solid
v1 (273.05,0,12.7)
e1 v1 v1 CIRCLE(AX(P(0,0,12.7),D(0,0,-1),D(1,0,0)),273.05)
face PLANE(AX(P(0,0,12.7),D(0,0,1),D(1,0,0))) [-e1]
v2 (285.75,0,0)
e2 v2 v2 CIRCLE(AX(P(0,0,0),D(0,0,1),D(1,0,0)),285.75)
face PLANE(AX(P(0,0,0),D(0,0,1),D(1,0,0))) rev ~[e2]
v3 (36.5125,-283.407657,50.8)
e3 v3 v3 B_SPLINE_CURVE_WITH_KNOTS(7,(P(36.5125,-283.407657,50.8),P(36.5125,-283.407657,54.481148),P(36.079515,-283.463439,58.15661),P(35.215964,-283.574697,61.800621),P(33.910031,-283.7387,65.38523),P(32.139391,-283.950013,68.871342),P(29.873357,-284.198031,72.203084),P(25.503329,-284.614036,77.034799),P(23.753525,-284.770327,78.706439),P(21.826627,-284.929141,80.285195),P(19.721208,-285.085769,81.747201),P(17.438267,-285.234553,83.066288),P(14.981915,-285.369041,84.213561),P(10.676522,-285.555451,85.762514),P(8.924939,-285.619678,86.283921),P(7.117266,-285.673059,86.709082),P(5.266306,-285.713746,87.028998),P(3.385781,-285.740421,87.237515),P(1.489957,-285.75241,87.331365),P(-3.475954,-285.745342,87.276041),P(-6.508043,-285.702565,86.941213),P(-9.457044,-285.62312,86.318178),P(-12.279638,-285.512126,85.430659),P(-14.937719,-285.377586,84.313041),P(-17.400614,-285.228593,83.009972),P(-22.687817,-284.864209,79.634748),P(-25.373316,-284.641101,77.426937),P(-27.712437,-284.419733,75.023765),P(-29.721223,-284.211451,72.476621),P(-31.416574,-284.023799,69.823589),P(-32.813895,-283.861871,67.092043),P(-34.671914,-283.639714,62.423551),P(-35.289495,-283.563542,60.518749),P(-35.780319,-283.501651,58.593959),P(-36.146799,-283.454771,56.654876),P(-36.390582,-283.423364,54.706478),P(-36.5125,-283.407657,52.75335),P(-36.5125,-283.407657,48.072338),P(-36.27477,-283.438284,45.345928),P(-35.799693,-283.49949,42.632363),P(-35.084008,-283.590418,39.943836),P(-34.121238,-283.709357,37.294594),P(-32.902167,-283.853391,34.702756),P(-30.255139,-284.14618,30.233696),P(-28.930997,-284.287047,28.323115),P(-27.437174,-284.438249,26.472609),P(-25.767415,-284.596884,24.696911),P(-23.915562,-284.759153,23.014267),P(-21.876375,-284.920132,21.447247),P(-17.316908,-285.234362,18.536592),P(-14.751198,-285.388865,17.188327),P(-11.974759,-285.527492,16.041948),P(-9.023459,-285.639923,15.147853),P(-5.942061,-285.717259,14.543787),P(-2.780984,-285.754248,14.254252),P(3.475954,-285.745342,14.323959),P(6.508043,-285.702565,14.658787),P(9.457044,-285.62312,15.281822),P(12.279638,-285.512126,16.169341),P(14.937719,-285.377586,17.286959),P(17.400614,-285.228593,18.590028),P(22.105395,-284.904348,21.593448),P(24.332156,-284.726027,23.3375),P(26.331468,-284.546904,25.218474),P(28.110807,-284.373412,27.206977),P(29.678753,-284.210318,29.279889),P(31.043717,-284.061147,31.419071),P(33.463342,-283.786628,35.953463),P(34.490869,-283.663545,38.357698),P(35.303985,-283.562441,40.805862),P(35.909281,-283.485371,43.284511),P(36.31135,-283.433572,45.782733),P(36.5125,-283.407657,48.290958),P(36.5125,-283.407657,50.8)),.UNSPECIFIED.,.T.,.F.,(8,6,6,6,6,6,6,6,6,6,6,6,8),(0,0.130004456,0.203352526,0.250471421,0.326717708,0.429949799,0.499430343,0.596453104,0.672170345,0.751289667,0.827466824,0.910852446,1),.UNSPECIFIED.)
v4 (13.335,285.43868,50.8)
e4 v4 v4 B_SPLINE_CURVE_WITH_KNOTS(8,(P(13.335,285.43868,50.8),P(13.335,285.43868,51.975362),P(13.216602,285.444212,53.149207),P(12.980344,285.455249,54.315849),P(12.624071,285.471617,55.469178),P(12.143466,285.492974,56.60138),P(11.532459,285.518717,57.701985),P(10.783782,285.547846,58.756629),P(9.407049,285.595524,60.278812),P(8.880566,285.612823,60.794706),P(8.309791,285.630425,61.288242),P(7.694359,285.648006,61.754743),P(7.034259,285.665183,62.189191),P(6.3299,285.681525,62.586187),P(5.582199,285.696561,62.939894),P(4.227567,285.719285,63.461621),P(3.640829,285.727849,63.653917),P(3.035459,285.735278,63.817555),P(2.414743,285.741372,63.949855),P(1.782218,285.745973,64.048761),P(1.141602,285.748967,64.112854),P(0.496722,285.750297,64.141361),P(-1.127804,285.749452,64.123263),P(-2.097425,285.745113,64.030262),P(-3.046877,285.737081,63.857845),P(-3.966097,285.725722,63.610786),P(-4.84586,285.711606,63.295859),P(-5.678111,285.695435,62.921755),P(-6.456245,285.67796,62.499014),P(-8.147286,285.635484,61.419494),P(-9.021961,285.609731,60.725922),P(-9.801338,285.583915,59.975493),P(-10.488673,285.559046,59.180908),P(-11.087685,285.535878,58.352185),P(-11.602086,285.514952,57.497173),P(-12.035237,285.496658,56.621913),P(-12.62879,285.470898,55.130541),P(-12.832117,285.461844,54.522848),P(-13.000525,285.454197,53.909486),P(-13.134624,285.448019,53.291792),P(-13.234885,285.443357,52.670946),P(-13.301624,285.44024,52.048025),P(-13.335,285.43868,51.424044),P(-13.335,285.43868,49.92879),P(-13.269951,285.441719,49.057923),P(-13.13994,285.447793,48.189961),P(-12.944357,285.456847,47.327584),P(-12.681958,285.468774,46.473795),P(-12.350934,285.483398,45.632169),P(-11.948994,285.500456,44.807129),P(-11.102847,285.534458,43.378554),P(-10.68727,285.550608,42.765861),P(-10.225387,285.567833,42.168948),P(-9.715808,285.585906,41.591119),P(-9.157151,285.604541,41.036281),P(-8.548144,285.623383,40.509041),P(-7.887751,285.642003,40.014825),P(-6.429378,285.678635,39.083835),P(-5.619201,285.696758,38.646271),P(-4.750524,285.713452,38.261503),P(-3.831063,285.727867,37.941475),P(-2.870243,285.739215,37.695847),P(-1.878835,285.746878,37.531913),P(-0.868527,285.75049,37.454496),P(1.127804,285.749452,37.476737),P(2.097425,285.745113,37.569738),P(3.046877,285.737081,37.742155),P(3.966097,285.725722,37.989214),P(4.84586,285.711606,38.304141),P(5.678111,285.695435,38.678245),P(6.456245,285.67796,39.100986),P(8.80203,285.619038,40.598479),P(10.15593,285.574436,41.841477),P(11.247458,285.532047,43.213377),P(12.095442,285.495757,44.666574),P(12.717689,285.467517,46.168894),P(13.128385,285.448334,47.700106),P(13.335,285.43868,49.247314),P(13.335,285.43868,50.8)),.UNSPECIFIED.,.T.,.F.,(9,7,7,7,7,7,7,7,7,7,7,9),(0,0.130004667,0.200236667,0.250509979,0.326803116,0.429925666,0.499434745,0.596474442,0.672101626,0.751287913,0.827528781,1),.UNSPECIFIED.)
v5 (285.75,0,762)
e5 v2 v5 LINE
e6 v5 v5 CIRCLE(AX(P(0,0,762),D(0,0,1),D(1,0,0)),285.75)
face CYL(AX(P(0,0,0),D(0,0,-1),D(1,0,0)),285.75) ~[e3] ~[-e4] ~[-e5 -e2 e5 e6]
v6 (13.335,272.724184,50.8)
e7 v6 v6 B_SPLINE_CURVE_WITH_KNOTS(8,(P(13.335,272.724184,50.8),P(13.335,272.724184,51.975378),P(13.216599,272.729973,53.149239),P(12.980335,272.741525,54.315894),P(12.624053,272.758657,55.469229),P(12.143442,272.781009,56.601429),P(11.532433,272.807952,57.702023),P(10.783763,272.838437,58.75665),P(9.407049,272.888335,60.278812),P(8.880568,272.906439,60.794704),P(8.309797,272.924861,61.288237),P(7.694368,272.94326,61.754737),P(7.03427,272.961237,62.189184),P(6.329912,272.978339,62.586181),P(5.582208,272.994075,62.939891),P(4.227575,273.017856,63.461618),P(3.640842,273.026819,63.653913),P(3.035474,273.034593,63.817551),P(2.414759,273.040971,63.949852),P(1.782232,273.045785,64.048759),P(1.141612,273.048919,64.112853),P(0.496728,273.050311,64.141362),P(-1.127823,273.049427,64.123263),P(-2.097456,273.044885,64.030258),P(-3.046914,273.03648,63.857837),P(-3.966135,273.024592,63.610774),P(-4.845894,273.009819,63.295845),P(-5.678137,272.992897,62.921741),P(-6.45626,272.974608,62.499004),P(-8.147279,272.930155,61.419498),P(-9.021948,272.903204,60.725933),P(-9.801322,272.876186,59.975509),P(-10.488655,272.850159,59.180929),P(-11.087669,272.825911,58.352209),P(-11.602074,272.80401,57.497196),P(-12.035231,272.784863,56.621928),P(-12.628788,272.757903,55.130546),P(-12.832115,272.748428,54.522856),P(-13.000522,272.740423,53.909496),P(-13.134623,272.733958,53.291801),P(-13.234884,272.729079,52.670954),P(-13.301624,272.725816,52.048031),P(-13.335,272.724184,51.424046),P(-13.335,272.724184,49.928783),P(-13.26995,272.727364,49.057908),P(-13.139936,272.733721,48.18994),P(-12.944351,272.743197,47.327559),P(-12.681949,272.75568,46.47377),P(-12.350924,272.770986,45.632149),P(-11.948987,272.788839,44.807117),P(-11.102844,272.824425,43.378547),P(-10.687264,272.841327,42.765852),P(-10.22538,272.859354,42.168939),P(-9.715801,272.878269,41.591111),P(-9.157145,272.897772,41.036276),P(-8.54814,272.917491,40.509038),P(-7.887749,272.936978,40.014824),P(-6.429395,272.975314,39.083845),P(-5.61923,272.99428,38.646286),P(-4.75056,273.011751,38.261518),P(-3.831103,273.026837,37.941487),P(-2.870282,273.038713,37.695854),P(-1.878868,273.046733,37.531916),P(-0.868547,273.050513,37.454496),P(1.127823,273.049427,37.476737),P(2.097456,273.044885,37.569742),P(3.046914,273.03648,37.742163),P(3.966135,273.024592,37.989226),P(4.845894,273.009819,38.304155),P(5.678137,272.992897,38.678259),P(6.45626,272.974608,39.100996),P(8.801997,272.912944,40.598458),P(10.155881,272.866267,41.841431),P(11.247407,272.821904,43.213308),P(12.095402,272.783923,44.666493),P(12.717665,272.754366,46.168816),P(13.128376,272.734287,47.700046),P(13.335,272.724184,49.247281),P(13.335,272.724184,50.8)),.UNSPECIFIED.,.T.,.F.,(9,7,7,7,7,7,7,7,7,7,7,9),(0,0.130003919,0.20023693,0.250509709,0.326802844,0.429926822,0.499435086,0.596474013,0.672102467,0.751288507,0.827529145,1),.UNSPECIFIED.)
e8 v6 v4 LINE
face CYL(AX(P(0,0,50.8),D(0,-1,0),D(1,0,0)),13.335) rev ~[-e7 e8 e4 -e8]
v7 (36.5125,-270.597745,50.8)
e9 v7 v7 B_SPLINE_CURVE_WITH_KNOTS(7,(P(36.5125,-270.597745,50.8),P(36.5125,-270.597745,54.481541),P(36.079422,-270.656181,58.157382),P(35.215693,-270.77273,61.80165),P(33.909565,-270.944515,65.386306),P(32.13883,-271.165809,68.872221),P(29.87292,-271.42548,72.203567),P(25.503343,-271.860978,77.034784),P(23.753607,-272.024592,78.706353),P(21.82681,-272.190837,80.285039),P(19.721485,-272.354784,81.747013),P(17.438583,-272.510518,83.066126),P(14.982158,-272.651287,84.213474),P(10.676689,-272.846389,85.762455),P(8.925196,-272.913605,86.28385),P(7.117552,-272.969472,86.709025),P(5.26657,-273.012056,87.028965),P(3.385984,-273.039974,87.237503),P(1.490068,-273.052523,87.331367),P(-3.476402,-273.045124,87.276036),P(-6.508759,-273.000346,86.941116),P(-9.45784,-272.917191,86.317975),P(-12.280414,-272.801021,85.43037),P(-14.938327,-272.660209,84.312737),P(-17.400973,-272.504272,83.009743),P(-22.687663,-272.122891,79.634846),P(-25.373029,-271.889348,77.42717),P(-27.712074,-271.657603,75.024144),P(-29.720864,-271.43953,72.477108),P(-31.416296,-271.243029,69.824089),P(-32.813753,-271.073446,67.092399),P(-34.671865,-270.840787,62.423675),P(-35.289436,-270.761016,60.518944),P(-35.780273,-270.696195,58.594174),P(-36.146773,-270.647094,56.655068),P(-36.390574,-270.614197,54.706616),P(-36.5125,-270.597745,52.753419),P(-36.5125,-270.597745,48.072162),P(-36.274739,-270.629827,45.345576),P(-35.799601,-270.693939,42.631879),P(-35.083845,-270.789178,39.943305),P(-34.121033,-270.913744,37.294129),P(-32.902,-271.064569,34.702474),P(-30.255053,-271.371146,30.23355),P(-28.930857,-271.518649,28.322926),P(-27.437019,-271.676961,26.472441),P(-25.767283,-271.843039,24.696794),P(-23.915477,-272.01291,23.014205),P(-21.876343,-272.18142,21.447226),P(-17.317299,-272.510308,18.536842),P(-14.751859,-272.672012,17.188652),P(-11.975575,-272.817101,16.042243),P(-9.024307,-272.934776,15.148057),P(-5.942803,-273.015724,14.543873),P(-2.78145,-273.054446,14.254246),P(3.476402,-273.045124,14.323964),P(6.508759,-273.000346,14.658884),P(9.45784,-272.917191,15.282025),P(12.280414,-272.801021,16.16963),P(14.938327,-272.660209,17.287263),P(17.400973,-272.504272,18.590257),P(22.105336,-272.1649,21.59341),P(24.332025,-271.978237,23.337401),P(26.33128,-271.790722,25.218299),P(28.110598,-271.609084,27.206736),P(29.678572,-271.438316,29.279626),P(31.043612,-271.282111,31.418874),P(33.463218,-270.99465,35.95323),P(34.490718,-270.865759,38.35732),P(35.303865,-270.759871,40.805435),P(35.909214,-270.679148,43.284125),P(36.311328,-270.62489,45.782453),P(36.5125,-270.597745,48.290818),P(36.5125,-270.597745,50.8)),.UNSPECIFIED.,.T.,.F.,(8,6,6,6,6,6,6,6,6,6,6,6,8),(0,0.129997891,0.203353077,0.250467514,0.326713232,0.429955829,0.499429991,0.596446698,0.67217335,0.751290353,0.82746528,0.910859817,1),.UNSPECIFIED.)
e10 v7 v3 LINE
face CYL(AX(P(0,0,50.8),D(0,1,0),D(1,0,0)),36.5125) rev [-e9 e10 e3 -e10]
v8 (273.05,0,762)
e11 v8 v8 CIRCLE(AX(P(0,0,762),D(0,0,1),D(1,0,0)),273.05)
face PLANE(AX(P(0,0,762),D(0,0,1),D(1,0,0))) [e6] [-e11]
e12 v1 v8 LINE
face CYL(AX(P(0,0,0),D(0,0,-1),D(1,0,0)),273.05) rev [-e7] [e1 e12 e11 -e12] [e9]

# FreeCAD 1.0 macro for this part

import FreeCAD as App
import Part
import Sketcher

V = App.Vector
Q = App.Units.Quantity


def faces_at(feature, points):
    """Names of the faces that lie closest to the given points."""
    faces = feature.Shape.Faces
    near = lambda p: min(range(len(faces)), key=lambda i: faces[i].distToShape(Part.Vertex(*p))[0])
    return sorted({f"Face{near(p) + 1}" for p in points})

doc = App.newDocument("Part")
body = doc.addObject("PartDesign::Body", "Body")

sketch1 = body.newObject("Sketcher::SketchObject", "Sketch")
sketch1.AttachmentSupport = (doc.getObject("XY_Plane"), [""])
sketch1.MapMode = "FlatFace"
sketch1.addGeometry(Part.Circle(V(0, 0, 0), V(0, 0, 1), 286), False)
sketch1.addConstraint(Sketcher.Constraint("Coincident", 0, 3, -1, 1))
sketch1.addConstraint(Sketcher.Constraint("Diameter", 0, Q("22.5 in")))
pad1 = body.newObject("PartDesign::Pad", "Pad")
pad1.Profile = sketch1
pad1.Length = Q("30 in")
doc.recompute()

thickness = body.newObject("PartDesign::Thickness", "Thickness")
thickness.Base = (pad1, faces_at(pad1, [(0, 0, 762)]))
thickness.Value = Q("0.5 in")
thickness.Reversed = True
thickness.Join = "Arc"

sketch2 = body.newObject("Sketcher::SketchObject", "Sketch001")
sketch2.AttachmentSupport = (doc.getObject("XZ_Plane"), [""])
sketch2.MapMode = "FlatFace"
sketch2.addGeometry(Part.Circle(V(0, 51, 0), V(0, 0, 1), 37), False)
sketch2.addConstraint(Sketcher.Constraint("PointOnObject", 0, 3, -2))
sketch2.addConstraint(Sketcher.Constraint("Diameter", 0, Q("2.875 in")))
sketch2.addConstraint(Sketcher.Constraint("DistanceY", -1, 1, 0, 3, Q("2 in")))
pocket1 = body.newObject("PartDesign::Pocket", "Pocket")
pocket1.Profile = sketch2
pocket1.Length = Q("12.9 in")
pocket1.Reversed = True

sketch3 = body.newObject("Sketcher::SketchObject", "Sketch002")
sketch3.AttachmentSupport = (doc.getObject("XZ_Plane"), [""])
sketch3.MapMode = "FlatFace"
sketch3.addGeometry(Part.Circle(V(0, 51, 0), V(0, 0, 1), 13), False)
sketch3.addConstraint(Sketcher.Constraint("PointOnObject", 0, 3, -2))
sketch3.addConstraint(Sketcher.Constraint("Diameter", 0, Q("1.05 in")))
sketch3.addConstraint(Sketcher.Constraint("DistanceY", -1, 1, 0, 3, Q("2 in")))
pocket2 = body.newObject("PartDesign::Pocket", "Pocket001")
pocket2.Profile = sketch3
pocket2.Length = Q("13.6 in")

doc.recompute()
